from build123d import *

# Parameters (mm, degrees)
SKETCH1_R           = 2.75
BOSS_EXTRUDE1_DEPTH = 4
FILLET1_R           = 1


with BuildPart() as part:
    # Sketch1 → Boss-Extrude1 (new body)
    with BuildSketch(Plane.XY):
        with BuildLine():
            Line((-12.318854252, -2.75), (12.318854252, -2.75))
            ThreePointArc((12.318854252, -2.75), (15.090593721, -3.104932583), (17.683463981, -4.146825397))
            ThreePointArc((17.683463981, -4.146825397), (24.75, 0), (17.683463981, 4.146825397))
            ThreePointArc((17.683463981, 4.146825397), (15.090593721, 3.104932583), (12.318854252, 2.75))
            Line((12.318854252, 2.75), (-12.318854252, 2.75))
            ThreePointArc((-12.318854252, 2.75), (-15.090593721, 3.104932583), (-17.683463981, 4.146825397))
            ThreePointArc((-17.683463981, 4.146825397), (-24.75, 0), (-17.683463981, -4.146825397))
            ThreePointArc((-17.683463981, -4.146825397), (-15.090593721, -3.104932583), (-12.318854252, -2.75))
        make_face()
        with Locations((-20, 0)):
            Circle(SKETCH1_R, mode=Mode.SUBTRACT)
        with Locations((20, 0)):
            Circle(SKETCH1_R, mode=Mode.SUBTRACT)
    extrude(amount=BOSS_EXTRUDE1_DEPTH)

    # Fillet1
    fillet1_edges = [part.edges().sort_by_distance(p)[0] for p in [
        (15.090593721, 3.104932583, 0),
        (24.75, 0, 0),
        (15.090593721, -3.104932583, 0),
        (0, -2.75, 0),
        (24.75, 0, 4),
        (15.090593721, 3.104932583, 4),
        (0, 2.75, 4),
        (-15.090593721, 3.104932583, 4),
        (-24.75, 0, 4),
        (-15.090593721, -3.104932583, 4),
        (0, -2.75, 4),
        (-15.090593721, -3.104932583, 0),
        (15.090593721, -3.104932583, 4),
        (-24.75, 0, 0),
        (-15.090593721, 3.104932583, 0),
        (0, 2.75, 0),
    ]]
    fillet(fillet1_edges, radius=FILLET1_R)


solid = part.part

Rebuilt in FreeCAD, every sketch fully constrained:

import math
import FreeCAD as App
import Part
import Sketcher

V = App.Vector
Q = App.Units.Quantity


def edges_at(feature, points):
    """Names of the edges that pass closest to the given points."""
    edges = feature.Shape.Edges
    near = lambda p: min(range(len(edges)), key=lambda i: edges[i].distToShape(Part.Vertex(*p))[0])
    return sorted({f"Edge{near(p) + 1}" for p in points})

doc = App.newDocument("Part")
body = doc.addObject("PartDesign::Body", "Body")

# Sketch on XY plane
sketch1 = doc.addObject("Sketcher::SketchObject", "Sketch")
body.addObject(sketch1)
sketch1.AttachmentSupport = (doc.XY_Plane, [""])
sketch1.MapMode = "FlatFace"
sketch1.addGeometry(Part.LineSegment(V(-12.3, -2.8, 0), V(12.3, -2.8, 0)), False)
sketch1.addGeometry(Part.ArcOfCircle(Part.Circle(V(12.3, -13.8, 0), V(0, 0, 1), 11), math.radians(61), math.radians(90)), False)
sketch1.addGeometry(Part.ArcOfCircle(Part.Circle(V(20, 0, 0), V(0, 0, 1), 4.8), math.radians(-119), math.radians(119)), False)
sketch1.addGeometry(Part.ArcOfCircle(Part.Circle(V(12.3, 13.8, 0), V(0, 0, 1), 11), math.radians(-90), math.radians(-61)), False)
sketch1.addGeometry(Part.LineSegment(V(12.3, 2.8, 0), V(-12.3, 2.8, 0)), False)
sketch1.addGeometry(Part.ArcOfCircle(Part.Circle(V(-12.3, 13.8, 0), V(0, 0, 1), 11), math.radians(-119), math.radians(-90)), False)
sketch1.addGeometry(Part.ArcOfCircle(Part.Circle(V(-20, 0, 0), V(0, 0, 1), 4.8), math.radians(61), math.radians(299)), False)
sketch1.addGeometry(Part.ArcOfCircle(Part.Circle(V(-12.3, -13.8, 0), V(0, 0, 1), 11), math.radians(90), math.radians(119)), False)
sketch1.addGeometry(Part.Circle(V(-20, 0, 0), V(0, 0, 1), 2.8), False)
sketch1.addGeometry(Part.Circle(V(20, 0, 0), V(0, 0, 1), 2.8), False)
sketch1.addConstraint(Sketcher.Constraint("Tangent", 0, 2, 1, 2))
sketch1.addConstraint(Sketcher.Constraint("Tangent", 1, 1, 2, 1))
sketch1.addConstraint(Sketcher.Constraint("Tangent", 2, 2, 3, 2))
sketch1.addConstraint(Sketcher.Constraint("Tangent", 3, 1, 4, 1))
sketch1.addConstraint(Sketcher.Constraint("Tangent", 4, 2, 5, 2))
sketch1.addConstraint(Sketcher.Constraint("Tangent", 5, 1, 6, 1))
sketch1.addConstraint(Sketcher.Constraint("Tangent", 6, 2, 7, 2))
sketch1.addConstraint(Sketcher.Constraint("Tangent", 7, 1, 0, 1))
sketch1.addConstraint(Sketcher.Constraint("Horizontal", 0))
sketch1.addConstraint(Sketcher.Constraint("Horizontal", 4))
sketch1.addConstraint(Sketcher.Constraint("Coincident", 8, 3, 6, 3))
sketch1.addConstraint(Sketcher.Constraint("Coincident", 9, 3, 2, 3))
sketch1.addConstraint(Sketcher.Constraint("Equal", 1, 3))
sketch1.addConstraint(Sketcher.Constraint("Equal", 3, 5))
sketch1.addConstraint(Sketcher.Constraint("Equal", 2, 6))
sketch1.addConstraint(Sketcher.Constraint("Equal", 5, 7))
sketch1.addConstraint(Sketcher.Constraint("Equal", 8, 9))
sketch1.addConstraint(Sketcher.Constraint("Symmetric", 1, 3, 5, 3, -1, 1))
sketch1.addConstraint(Sketcher.Constraint("Symmetric", 2, 3, 6, 3, -2))
sketch1.addConstraint(Sketcher.Constraint("Radius", 1, Q("11 mm")))
sketch1.addConstraint(Sketcher.Constraint("Diameter", 8, Q("5.5 mm")))
sketch1.addConstraint(Sketcher.Constraint("Radius", 2, Q("4.75 mm")))
sketch1.addConstraint(Sketcher.Constraint("DistanceX", -1, 1, 2, 3, Q("20 mm")))
sketch1.addConstraint(Sketcher.Constraint("DistanceY", 1, 3, 3, 3, Q("27.5 mm")))
pad1 = doc.addObject("PartDesign::Pad", "Pad")
body.addObject(pad1)
pad1.Profile = sketch1
pad1.Length = 4
doc.recompute()

fillet = doc.addObject("PartDesign::Fillet", "Fillet")
body.addObject(fillet)
fillet.Base = (pad1, edges_at(pad1, [
    (15.091, 3.105, 0),
    (24.75, 0, 0),
    (15.091, -3.105, 0),
    (0, -2.75, 0),
    (24.75, 0, 4),
    (15.091, 3.105, 4),
    (0, 2.75, 4),
    (-15.091, 3.105, 4),
    (-24.75, 0, 4),
    (-15.091, -3.105, 4),
    (0, -2.75, 4),
    (-15.091, -3.105, 0),
    (15.091, -3.105, 4),
    (-24.75, 0, 0),
    (-15.091, 3.105, 0),
    (0, 2.75, 0),
]))
fillet.Radius = 1

doc.recompute()
